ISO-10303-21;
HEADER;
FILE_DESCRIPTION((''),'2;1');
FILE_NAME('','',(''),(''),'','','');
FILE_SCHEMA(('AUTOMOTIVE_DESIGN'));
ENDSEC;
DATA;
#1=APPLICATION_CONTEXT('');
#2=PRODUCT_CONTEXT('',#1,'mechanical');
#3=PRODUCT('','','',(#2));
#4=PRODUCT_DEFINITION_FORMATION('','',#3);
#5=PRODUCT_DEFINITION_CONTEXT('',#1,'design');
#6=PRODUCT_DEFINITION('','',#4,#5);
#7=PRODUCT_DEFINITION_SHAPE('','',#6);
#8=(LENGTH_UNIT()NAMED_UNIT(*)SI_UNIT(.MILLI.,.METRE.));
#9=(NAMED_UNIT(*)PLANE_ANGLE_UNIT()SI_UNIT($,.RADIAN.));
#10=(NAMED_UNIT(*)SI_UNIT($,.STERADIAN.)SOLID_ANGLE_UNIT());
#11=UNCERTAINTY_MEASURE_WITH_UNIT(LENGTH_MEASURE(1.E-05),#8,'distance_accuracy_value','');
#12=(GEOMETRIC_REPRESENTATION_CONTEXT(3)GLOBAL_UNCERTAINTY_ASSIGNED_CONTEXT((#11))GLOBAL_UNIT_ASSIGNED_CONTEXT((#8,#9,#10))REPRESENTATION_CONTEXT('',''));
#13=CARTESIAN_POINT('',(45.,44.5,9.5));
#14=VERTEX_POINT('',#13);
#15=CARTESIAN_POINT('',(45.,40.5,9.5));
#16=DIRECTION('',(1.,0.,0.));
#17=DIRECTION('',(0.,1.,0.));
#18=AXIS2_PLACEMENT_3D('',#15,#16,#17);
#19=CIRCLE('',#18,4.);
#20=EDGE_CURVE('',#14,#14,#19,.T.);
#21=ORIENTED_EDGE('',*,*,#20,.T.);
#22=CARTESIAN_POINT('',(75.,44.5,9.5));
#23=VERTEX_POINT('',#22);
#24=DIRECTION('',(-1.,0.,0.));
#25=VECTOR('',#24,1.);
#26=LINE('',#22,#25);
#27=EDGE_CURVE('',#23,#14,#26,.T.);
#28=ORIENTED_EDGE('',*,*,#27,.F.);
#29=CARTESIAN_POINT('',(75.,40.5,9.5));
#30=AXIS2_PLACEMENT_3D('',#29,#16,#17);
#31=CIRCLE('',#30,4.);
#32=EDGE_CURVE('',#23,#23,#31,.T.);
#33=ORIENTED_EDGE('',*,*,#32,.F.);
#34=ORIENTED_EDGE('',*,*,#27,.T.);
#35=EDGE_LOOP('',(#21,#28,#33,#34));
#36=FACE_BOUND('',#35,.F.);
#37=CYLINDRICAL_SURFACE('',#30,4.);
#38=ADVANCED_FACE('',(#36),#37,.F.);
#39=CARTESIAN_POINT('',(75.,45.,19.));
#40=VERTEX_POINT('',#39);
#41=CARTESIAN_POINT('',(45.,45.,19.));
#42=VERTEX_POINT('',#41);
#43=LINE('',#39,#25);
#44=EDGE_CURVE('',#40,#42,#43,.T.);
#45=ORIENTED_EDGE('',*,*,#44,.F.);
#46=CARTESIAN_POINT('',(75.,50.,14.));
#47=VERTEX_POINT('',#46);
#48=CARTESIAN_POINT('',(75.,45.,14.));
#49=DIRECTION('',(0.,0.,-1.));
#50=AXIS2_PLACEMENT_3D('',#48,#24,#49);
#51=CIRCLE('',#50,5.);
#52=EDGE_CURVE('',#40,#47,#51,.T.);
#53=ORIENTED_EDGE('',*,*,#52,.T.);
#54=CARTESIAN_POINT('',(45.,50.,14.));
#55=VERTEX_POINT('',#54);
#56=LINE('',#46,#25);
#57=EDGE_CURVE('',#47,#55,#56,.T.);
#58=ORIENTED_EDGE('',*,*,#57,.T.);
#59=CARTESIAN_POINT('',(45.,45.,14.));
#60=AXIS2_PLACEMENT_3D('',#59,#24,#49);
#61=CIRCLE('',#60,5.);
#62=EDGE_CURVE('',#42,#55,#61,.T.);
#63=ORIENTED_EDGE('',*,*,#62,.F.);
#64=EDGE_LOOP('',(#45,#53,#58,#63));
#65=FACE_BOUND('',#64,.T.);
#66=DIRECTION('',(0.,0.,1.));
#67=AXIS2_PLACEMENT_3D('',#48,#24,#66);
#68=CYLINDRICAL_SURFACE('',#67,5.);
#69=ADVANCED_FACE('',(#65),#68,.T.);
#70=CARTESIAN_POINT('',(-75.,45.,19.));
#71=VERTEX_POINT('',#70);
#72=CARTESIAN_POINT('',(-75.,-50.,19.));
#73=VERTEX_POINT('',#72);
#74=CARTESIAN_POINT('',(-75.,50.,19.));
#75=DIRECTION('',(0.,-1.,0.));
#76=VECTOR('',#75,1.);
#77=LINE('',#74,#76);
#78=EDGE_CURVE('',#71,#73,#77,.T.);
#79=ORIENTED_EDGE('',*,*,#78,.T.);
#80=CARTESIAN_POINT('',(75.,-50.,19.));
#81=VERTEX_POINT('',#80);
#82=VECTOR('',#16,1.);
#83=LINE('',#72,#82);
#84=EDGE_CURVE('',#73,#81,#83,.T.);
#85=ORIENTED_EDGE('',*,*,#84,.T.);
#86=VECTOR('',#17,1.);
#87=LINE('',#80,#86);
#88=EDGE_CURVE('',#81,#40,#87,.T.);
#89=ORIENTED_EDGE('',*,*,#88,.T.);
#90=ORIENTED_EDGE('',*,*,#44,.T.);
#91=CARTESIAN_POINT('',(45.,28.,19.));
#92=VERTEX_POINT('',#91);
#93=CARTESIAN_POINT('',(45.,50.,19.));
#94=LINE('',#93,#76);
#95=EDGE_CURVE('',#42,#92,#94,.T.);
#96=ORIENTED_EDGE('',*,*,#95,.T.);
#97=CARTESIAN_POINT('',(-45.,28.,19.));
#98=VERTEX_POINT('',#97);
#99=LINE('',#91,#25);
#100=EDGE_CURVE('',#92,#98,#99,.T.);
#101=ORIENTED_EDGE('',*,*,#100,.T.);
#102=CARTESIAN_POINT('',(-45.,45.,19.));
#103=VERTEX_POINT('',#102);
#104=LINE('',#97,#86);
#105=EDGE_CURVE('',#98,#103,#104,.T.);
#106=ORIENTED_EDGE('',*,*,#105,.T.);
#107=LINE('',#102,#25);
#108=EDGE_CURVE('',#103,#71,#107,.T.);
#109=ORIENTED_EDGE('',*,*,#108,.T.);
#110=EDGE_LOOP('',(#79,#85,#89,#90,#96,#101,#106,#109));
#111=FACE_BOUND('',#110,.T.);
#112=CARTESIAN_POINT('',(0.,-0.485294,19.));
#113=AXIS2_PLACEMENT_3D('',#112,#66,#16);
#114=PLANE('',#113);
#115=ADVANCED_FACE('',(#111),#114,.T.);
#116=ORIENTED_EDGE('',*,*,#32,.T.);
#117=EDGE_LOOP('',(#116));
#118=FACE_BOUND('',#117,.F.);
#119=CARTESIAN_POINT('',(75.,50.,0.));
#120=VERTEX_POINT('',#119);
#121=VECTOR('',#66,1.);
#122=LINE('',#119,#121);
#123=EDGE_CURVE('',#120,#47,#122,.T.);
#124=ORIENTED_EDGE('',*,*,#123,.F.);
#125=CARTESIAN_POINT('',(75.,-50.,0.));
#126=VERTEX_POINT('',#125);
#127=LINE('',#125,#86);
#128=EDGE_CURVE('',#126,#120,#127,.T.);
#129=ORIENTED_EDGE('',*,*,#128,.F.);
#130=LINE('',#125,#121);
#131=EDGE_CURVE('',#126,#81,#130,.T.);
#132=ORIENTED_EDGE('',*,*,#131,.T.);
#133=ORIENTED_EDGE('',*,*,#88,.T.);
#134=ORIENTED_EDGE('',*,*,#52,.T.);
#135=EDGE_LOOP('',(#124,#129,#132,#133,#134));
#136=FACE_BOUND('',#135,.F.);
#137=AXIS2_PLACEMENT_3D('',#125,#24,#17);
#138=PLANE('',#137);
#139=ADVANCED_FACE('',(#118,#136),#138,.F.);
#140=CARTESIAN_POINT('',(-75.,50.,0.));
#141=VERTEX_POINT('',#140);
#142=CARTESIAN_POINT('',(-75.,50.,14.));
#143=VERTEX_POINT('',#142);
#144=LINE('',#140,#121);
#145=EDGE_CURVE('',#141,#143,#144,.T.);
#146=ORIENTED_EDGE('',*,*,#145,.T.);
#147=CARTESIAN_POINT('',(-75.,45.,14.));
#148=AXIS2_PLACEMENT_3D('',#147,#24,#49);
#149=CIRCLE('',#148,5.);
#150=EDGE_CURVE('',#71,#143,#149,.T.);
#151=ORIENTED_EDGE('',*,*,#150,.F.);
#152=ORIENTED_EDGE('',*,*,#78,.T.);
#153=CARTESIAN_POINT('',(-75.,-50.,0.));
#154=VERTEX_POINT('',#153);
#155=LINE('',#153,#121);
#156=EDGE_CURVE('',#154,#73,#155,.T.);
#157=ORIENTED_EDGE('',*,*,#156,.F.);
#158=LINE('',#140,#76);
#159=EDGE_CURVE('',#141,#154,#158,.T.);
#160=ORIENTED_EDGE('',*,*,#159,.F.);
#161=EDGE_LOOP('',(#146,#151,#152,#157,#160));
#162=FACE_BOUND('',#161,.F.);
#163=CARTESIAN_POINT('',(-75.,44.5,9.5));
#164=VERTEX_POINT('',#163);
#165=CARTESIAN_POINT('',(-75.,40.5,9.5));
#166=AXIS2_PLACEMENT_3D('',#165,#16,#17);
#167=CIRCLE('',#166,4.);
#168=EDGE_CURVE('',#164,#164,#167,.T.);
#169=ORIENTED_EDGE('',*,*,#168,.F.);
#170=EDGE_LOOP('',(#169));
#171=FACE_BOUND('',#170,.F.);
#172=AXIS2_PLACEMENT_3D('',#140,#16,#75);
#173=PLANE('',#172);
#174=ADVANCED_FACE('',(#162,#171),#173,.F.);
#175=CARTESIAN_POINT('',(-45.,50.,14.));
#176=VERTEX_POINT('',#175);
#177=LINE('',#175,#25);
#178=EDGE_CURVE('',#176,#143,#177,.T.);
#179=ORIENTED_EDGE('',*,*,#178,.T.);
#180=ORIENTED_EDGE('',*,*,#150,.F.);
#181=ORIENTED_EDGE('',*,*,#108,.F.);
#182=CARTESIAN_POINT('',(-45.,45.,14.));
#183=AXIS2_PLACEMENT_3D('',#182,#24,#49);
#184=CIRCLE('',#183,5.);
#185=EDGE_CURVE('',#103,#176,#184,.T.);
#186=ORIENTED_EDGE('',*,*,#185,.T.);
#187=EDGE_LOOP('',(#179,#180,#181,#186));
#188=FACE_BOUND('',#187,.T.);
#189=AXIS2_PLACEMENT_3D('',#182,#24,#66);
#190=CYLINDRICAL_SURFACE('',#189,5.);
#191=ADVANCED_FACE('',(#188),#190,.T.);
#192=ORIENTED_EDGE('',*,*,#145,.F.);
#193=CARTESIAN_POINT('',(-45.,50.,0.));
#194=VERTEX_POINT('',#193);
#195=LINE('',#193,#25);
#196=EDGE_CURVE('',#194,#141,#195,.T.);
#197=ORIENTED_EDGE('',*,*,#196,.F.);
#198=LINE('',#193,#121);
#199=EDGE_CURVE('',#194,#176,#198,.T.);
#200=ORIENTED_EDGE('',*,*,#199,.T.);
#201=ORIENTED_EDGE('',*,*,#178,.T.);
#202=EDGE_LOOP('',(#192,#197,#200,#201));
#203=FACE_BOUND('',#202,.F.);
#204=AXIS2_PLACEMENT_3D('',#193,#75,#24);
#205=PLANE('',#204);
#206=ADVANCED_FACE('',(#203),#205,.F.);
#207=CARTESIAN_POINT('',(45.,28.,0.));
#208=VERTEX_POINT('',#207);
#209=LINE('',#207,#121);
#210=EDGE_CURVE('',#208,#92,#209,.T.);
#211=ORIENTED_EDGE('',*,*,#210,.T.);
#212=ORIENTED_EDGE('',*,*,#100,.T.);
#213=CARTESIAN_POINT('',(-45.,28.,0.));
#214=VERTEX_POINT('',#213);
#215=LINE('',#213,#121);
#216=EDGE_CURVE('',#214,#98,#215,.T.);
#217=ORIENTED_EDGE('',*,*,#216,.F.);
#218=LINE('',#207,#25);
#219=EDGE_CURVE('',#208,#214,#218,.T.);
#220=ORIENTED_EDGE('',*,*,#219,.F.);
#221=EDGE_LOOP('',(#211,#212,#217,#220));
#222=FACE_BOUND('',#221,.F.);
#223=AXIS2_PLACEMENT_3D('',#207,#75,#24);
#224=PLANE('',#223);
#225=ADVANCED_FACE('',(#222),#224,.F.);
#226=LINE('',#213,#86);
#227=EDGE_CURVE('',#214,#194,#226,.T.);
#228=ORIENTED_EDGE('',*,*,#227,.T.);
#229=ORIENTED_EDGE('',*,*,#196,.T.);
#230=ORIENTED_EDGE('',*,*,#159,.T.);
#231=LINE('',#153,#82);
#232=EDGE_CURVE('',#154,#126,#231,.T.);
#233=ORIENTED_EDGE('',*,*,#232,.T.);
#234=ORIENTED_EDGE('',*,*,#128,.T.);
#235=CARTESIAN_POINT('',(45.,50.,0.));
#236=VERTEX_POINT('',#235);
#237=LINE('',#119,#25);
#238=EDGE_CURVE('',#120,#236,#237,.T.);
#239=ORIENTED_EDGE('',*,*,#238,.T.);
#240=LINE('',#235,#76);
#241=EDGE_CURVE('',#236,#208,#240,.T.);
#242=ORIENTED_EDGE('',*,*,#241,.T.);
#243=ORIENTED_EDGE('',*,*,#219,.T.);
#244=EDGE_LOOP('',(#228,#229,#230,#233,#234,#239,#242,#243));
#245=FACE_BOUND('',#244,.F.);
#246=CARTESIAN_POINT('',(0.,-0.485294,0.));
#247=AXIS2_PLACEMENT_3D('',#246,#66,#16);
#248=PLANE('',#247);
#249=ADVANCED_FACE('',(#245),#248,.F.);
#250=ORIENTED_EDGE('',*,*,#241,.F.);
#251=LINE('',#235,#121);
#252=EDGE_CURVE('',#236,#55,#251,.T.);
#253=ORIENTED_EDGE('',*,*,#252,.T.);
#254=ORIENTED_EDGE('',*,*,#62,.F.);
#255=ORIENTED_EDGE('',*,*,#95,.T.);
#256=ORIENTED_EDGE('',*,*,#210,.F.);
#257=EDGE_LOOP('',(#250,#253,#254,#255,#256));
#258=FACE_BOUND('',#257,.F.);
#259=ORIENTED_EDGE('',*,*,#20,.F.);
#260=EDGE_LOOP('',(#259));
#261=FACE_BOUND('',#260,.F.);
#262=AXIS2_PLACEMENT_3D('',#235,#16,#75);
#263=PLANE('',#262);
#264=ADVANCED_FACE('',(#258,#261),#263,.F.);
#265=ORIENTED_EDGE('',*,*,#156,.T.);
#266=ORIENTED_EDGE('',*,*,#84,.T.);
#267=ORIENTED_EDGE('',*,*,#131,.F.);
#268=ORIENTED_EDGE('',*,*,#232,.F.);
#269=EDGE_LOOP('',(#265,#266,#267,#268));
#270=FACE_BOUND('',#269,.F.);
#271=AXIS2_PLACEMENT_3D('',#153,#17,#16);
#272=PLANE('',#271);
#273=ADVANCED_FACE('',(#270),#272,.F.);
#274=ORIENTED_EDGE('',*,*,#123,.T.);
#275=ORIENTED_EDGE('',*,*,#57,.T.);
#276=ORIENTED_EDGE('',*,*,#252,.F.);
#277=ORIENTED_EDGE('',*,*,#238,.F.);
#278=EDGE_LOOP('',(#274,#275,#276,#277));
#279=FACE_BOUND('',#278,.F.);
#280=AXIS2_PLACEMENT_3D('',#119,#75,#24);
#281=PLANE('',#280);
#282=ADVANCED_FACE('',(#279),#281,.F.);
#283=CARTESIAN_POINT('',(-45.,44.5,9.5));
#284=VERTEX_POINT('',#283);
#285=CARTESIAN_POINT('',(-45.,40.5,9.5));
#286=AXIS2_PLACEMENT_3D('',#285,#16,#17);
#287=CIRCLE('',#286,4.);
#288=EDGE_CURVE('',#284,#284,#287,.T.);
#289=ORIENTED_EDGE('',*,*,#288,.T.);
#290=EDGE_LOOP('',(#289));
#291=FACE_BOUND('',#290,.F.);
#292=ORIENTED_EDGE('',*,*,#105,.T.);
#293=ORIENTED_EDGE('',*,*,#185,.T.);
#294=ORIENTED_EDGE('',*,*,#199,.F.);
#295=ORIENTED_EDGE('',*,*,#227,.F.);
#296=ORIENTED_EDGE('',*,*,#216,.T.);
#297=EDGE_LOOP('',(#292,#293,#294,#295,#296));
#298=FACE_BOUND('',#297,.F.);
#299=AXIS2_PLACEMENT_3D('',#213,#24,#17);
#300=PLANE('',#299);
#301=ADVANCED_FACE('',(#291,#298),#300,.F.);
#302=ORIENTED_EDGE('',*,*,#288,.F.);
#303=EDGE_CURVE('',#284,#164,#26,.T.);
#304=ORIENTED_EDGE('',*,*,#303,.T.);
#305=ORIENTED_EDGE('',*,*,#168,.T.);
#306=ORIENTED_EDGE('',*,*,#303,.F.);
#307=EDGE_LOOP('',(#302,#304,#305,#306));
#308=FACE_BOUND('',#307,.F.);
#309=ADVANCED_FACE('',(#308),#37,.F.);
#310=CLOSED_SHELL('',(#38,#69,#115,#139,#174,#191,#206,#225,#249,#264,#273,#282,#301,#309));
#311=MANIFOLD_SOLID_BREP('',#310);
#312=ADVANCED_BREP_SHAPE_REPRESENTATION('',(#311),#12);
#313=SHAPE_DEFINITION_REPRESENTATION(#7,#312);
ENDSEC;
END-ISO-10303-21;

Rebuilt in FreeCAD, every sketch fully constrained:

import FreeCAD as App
import Part
import Sketcher
from FreeCAD import Vector
Q = App.Units.Quantity


def edges_at(feature, points):
    """Names of the edges that pass closest to the given points."""
    edges = feature.Shape.Edges
    near = lambda p: min(range(len(edges)), key=lambda i: edges[i].distToShape(Part.Vertex(*p))[0])
    return sorted({f"Edge{near(p) + 1}" for p in points})


def add_polygon(sketch, points):
    """Adds a closed chain of lines whose ends are joined by coincident constraints."""
    first, n = sketch.GeometryCount, len(points)
    for a, b in zip(points, points[1:] + points[:1]):
        sketch.addGeometry(Part.LineSegment(App.Vector(*a, 0), App.Vector(*b, 0)), False)
    for i in range(n):
        sketch.addConstraint(Sketcher.Constraint("Coincident", first + i, 2, first + (i + 1) % n, 1))

doc = App.newDocument("Part")
body = doc.addObject("PartDesign::Body", "Body")

sketch1 = body.newObject("Sketcher::SketchObject", "Sketch")
sketch1.AttachmentSupport = (doc.getObject("XY_Plane"), [""])
sketch1.MapMode = "FlatFace"
add_polygon(sketch1, [(-75, -50), (75, -50), (75, 50), (45, 50), (45, 28), (-45, 28), (-45, 50), (-75, 50)])
sketch1.addConstraint(Sketcher.Constraint("Horizontal", 0))
sketch1.addConstraint(Sketcher.Constraint("Vertical", 1))
sketch1.addConstraint(Sketcher.Constraint("Horizontal", 2))
sketch1.addConstraint(Sketcher.Constraint("Vertical", 3))
sketch1.addConstraint(Sketcher.Constraint("Horizontal", 4))
sketch1.addConstraint(Sketcher.Constraint("Vertical", 5))
sketch1.addConstraint(Sketcher.Constraint("Horizontal", 6))
sketch1.addConstraint(Sketcher.Constraint("Vertical", 7))
sketch1.addConstraint(Sketcher.Constraint("Symmetric", 0, 2, 6, 2, -1, 1))
sketch1.addConstraint(Sketcher.Constraint("Symmetric", 2, 2, 5, 2, -2))
sketch1.addConstraint(Sketcher.Constraint("DistanceX", 0, 1, 0, 2, Q("150 mm")))
sketch1.addConstraint(Sketcher.Constraint("DistanceX", 2, 2, 2, 1, Q("30 mm")))
sketch1.addConstraint(Sketcher.Constraint("DistanceY", 1, 1, 1, 2, Q("100 mm")))
sketch1.addConstraint(Sketcher.Constraint("DistanceY", 3, 2, 3, 1, Q("22 mm")))
pad1 = body.newObject("PartDesign::Pad", "Pad")
pad1.Profile = sketch1
pad1.Length = 19

sketch2 = body.newObject("Sketcher::SketchObject", "Sketch001")
sketch2.AttachmentSupport = (doc.getObject("YZ_Plane"), [""])
sketch2.MapMode = "FlatFace"
sketch2.AttachmentOffset = App.Placement(Vector(0, 0, 75), App.Rotation())
sketch2.addGeometry(Part.Circle(Vector(40.5, 9.5, 0), Vector(0, 0, 1), 4), False)
sketch2.addConstraint(Sketcher.Constraint("Diameter", 0, Q("8 mm")))
sketch2.addConstraint(Sketcher.Constraint("DistanceX", -1, 1, 0, 3, Q("40.5 mm")))
sketch2.addConstraint(Sketcher.Constraint("DistanceY", -1, 1, 0, 3, Q("9.5 mm")))
pocket1 = body.newObject("PartDesign::Pocket", "Pocket")
pocket1.Profile = sketch2
pocket1.Type = "ThroughAll"
doc.recompute()

fillet = body.newObject("PartDesign::Fillet", "Fillet")
fillet.Base = (pocket1, edges_at(pocket1, [(-60, 50, 19), (60, 50, 19)]))
fillet.Radius = 5

doc.recompute()
